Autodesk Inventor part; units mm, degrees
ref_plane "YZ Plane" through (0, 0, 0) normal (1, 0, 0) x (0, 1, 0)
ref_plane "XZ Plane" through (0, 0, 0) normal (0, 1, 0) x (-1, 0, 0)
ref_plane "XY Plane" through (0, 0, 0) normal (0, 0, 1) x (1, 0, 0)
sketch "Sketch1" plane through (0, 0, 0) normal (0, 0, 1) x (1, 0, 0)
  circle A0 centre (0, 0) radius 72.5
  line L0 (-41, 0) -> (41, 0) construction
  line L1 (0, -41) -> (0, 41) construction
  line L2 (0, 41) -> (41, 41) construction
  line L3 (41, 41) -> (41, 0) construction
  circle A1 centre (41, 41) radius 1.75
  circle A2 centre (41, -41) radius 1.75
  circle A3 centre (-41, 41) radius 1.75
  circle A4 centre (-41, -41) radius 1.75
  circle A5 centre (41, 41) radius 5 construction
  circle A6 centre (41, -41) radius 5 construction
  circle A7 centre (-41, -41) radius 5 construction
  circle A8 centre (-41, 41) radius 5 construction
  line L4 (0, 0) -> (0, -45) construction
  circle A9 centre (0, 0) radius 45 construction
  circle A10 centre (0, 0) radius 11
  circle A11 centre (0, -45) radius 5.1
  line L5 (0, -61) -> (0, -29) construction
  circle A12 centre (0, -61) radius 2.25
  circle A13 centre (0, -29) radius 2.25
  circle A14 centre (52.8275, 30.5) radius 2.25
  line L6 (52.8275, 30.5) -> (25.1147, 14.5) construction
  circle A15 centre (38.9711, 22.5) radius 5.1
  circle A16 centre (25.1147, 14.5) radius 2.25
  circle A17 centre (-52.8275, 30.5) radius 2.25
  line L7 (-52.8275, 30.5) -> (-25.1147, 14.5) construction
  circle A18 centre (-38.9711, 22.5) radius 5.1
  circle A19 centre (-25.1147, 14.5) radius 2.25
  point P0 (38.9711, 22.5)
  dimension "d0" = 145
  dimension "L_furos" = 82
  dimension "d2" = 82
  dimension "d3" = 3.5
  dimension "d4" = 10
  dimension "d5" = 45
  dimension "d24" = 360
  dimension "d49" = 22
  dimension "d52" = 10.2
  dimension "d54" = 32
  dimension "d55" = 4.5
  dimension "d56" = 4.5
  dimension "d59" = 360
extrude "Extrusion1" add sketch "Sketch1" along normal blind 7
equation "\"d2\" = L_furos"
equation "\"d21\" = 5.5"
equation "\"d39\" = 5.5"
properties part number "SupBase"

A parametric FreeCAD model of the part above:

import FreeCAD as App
import Part
import Sketcher

V = App.Vector

doc = App.newDocument("Part")
body = doc.addObject("PartDesign::Body", "Body")

# Sketch on XY plane
sketch1 = body.newObject("Sketcher::SketchObject", "Sketch")
sketch1.AttachmentSupport = (doc.getObject("XY_Plane"), [""])
sketch1.MapMode = "FlatFace"
sketch1.addGeometry([
    Part.Circle(V(0, 0, 0), V(0, 0, 1), 72.5),  # 0
    Part.Circle(V(-41, -41, 0), V(0, 0, 1), 1.8),  # 1
    Part.Circle(V(0, -61, 0), V(0, 0, 1), 2.2),  # 2
    Part.Circle(V(0, -45, 0), V(0, 0, 1), 5.1),  # 3
    Part.Circle(V(41, -41, 0), V(0, 0, 1), 1.8),  # 4
    Part.Circle(V(0, -29, 0), V(0, 0, 1), 2.2),  # 5
    Part.Circle(V(-39, 22.5, 0), V(0, 0, 1), 5.1),  # 6
    Part.Circle(V(-52.8, 30.5, 0), V(0, 0, 1), 2.2),  # 7
    Part.Circle(V(-25.1, 14.5, 0), V(0, 0, 1), 2.2),  # 8
    Part.Circle(V(-41, 41, 0), V(0, 0, 1), 1.8),  # 9
    Part.Circle(V(0, 0, 0), V(0, 0, 1), 11),  # 10
    Part.Circle(V(25.1, 14.5, 0), V(0, 0, 1), 2.2),  # 11
    Part.Circle(V(39, 22.5, 0), V(0, 0, 1), 5.1),  # 12
    Part.Circle(V(52.8, 30.5, 0), V(0, 0, 1), 2.2),  # 13
    Part.Circle(V(41, 41, 0), V(0, 0, 1), 1.8),  # 14
], False)
sketch1.addConstraint([
    Sketcher.Constraint("Coincident", 0, 3, -1, 1),
    Sketcher.Constraint("Coincident", 10, 3, -1, 1),
    Sketcher.Constraint("Equal", 1, 4),
    Sketcher.Constraint("Equal", 2, 5),
    Sketcher.Constraint("Equal", 3, 6),
    Sketcher.Constraint("Equal", 5, 7),
    Sketcher.Constraint("Equal", 7, 8),
    Sketcher.Constraint("Equal", 4, 9),
    Sketcher.Constraint("Equal", 8, 11),
    Sketcher.Constraint("Equal", 6, 12),
    Sketcher.Constraint("Equal", 11, 13),
    Sketcher.Constraint("Equal", 9, 14),
    Sketcher.Constraint("Symmetric", 4, 3, 9, 3, -1, 1),
    Sketcher.Constraint("Symmetric", 1, 3, 14, 3, -1, 1),
    Sketcher.Constraint("Symmetric", 1, 3, 4, 3, -2),
    Sketcher.Constraint("Symmetric", 8, 3, 11, 3, -2),
    Sketcher.Constraint("Symmetric", 6, 3, 12, 3, -2),
    Sketcher.Constraint("Symmetric", 7, 3, 13, 3, -2),
    Sketcher.Constraint("PointOnObject", 2, 3, -2),
    Sketcher.Constraint("PointOnObject", 3, 3, -2),
    Sketcher.Constraint("PointOnObject", 5, 3, -2),
    Sketcher.Constraint("Diameter", 0, 145.0),
    Sketcher.Constraint("Diameter", 10, 22.0),
    Sketcher.Constraint("Diameter", 1, 3.5),
    Sketcher.Constraint("Diameter", 2, 4.5),
    Sketcher.Constraint("Diameter", 3, 10.2),
    Sketcher.Constraint("DistanceY", 3, 3, -1, 1, 45.0),
    Sketcher.Constraint("DistanceX", 1, 3, 4, 3, 82.0),
    Sketcher.Constraint("DistanceY", 2, 3, 5, 3, 32.0),
    Sketcher.Constraint("DistanceY", 1, 3, -1, 1, 41.0),
    Sketcher.Constraint("DistanceY", 2, 3, -1, 1, 61.0),
    Sketcher.Constraint("DistanceY", 6, 3, 7, 3, 8.0),
    Sketcher.Constraint("DistanceY", 8, 3, 6, 3, 8.0),
    Sketcher.Constraint("DistanceY", -1, 1, 6, 3, 22.5),
    Sketcher.Constraint("DistanceX", 6, 3, -1, 1, 38.971),
    Sketcher.Constraint("DistanceX", 7, 3, -1, 1, 52.8275),
    Sketcher.Constraint("DistanceX", 8, 3, -1, 1, 25.1147),
])
pad1 = body.newObject("PartDesign::Pad", "Pad")
pad1.Profile = sketch1
pad1.Length = 7

doc.recompute()
